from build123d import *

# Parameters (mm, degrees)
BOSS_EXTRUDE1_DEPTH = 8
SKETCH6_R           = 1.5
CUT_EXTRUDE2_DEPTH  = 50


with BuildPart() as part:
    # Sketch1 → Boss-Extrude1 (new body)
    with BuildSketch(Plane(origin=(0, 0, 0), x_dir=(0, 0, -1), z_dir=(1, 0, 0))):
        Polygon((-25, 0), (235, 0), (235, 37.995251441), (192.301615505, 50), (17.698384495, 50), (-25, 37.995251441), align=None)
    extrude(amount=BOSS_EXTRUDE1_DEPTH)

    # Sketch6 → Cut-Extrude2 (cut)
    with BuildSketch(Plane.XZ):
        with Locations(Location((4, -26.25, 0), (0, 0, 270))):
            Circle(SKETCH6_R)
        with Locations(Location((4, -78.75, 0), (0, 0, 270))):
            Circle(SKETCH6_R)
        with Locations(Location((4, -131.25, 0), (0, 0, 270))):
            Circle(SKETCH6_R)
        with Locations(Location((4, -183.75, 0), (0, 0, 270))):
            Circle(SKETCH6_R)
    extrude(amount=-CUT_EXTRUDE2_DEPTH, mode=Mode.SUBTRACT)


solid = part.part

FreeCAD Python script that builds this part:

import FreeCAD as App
import Part
import Sketcher

V = App.Vector

doc = App.newDocument("Part")
params = doc.addObject("Spreadsheet::Sheet", "Params")
for row, (alias, value) in enumerate([
    ("sketch1_height", "260 mm"),
    ("pad1_length", "8 mm"),
    ("sketch2_diameter", "3 mm"),
    ("pocket1_length", "50 mm"),
], start=1):
    params.set(f"A{row}", alias)
    params.set(f"B{row}", "=" + value)
    params.setAlias(f"B{row}", alias)

body = doc.addObject("PartDesign::Body", "Body")

sketch1 = body.newObject("Sketcher::SketchObject", "Sketch")
sketch1.AttachmentSupport = (doc.getObject("YZ_Plane"), [""])
sketch1.MapMode = "FlatFace"
sketch1.addGeometry([
    Part.LineSegment(V(0, 25, 0), V(0, -235, 0)),
    Part.LineSegment(V(0, -235, 0), V(38, -235, 0)),
    Part.LineSegment(V(38, -235, 0), V(50, -192, 0)),
    Part.LineSegment(V(50, -192, 0), V(50, -18, 0)),
    Part.LineSegment(V(50, -18, 0), V(38, 25, 0)),
    Part.LineSegment(V(38, 25, 0), V(0, 25, 0)),
], False)
sketch1.addConstraint([
    Sketcher.Constraint("Coincident", 0, 2, 1, 1),
    Sketcher.Constraint("Coincident", 1, 2, 2, 1),
    Sketcher.Constraint("Coincident", 2, 2, 3, 1),
    Sketcher.Constraint("Coincident", 3, 2, 4, 1),
    Sketcher.Constraint("Coincident", 4, 2, 5, 1),
    Sketcher.Constraint("Coincident", 5, 2, 0, 1),
    Sketcher.Constraint("Vertical", 0),
    Sketcher.Constraint("Horizontal", 1),
    Sketcher.Constraint("Vertical", 3),
    Sketcher.Constraint("Horizontal", 5),
    Sketcher.Constraint("PointOnObject", 0, 2, -2),
    Sketcher.Constraint("Vertical", 1, 2, 4, 2),
    Sketcher.Constraint("Equal", 2, 4),
    Sketcher.Constraint("DistanceY", 0, 2, 0, 1, 260.0),
    Sketcher.Constraint("DistanceY", 0, 2, -1, 1, 235.0),
    Sketcher.Constraint("DistanceX", -1, 1, 2, 2, 50.0),
    Sketcher.Constraint("DistanceX", 1, 1, 1, 2, 37.995251),
    Sketcher.Constraint("DistanceY", 3, 1, 3, 2, 174.603231),
])
sketch1.setExpression("Constraints[13]", "Params.sketch1_height")
pad1 = body.newObject("PartDesign::Pad", "Pad")
pad1.Profile = sketch1
pad1.setExpression("Length", "Params.pad1_length")

sketch2 = body.newObject("Sketcher::SketchObject", "Sketch001")
sketch2.AttachmentSupport = (doc.getObject("XZ_Plane"), [""])
sketch2.MapMode = "FlatFace"
sketch2.addGeometry([
    Part.Circle(V(4, -26.2, 0), V(0, 0, 1), 1.5),
    Part.Circle(V(4, -78.8, 0), V(0, 0, 1), 1.5),
    Part.Circle(V(4, -131.2, 0), V(0, 0, 1), 1.5),
    Part.Circle(V(4, -183.8, 0), V(0, 0, 1), 1.5),
], False)
sketch2.addConstraint([
    Sketcher.Constraint("Equal", 0, 1),
    Sketcher.Constraint("Equal", 1, 2),
    Sketcher.Constraint("Equal", 2, 3),
    Sketcher.Constraint("Vertical", 0, 3, 1, 3),
    Sketcher.Constraint("Vertical", 1, 3, 2, 3),
    Sketcher.Constraint("Vertical", 2, 3, 3, 3),
    Sketcher.Constraint("Diameter", 0, 3.0),
    Sketcher.Constraint("DistanceX", -1, 1, 0, 3, 4.0),
    Sketcher.Constraint("DistanceY", 2, 3, 0, 3, 105.0),
    Sketcher.Constraint("DistanceY", 3, 3, 1, 3, 105.0),
    Sketcher.Constraint("DistanceY", 1, 3, 0, 3, 52.5),
    Sketcher.Constraint("DistanceY", 0, 3, -1, 1, 26.25),
])
sketch2.setExpression("Constraints[6]", "Params.sketch2_diameter")
pocket1 = body.newObject("PartDesign::Pocket", "Pocket")
pocket1.Profile = sketch2
pocket1.setExpression("Length", "Params.pocket1_length")

doc.recompute()
